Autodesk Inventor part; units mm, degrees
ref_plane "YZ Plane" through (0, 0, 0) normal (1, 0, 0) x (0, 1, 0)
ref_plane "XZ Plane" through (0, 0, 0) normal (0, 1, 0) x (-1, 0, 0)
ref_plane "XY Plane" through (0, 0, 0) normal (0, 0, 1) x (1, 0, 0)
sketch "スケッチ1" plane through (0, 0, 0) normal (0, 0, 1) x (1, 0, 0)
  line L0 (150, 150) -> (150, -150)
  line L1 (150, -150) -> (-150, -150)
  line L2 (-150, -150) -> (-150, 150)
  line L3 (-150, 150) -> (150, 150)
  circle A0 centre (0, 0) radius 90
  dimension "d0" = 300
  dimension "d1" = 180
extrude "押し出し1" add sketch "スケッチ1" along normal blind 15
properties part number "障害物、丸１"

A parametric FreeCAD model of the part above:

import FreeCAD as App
import Part
import Sketcher
from FreeCAD import Vector


def add_polygon(sketch, points):
    """Adds a closed chain of lines whose ends are joined by coincident constraints."""
    first, n = sketch.GeometryCount, len(points)
    for a, b in zip(points, points[1:] + points[:1]):
        sketch.addGeometry(Part.LineSegment(App.Vector(*a, 0), App.Vector(*b, 0)), False)
    for i in range(n):
        sketch.addConstraint(Sketcher.Constraint("Coincident", first + i, 2, first + (i + 1) % n, 1))

doc = App.newDocument("Part")
params = doc.addObject("Spreadsheet::Sheet", "Params")
for row, (alias, value) in enumerate([
    ("sketch1_diameter", "180 mm"),
    ("sketch1_width", "300 mm"),
    ("pad1_length", "15 mm"),
], start=1):
    params.set(f"A{row}", alias)
    params.set(f"B{row}", "=" + value)
    params.setAlias(f"B{row}", alias)

body = doc.addObject("PartDesign::Body", "Body")

sketch1 = body.newObject("Sketcher::SketchObject", "Sketch")
sketch1.AttachmentSupport = (doc.getObject("XY_Plane"), [""])
sketch1.MapMode = "FlatFace"
add_polygon(sketch1, [(150, -150), (150, 150), (-150, 150), (-150, -150)])
sketch1.addGeometry(Part.Circle(Vector(0, 0, 0), Vector(0, 0, 1), 90), False)
sketch1.addConstraint(Sketcher.Constraint("Vertical", 0))
sketch1.addConstraint(Sketcher.Constraint("Horizontal", 1))
sketch1.addConstraint(Sketcher.Constraint("Vertical", 2))
sketch1.addConstraint(Sketcher.Constraint("Horizontal", 3))
sketch1.addConstraint(Sketcher.Constraint("Coincident", 4, 3, -1, 1))
sketch1.addConstraint(Sketcher.Constraint("Symmetric", 0, 2, 2, 2, -1, 1))
sketch1.addConstraint(Sketcher.Constraint("Equal", 3, 0))
sketch1.addConstraint(Sketcher.Constraint("Diameter", 4, 180.0))
sketch1.addConstraint(Sketcher.Constraint("DistanceX", 1, 2, 1, 1, 300.0))
sketch1.setExpression("Constraints[11]", "Params.sketch1_diameter")
sketch1.setExpression("Constraints[12]", "Params.sketch1_width")
pad1 = body.newObject("PartDesign::Pad", "Pad")
pad1.Profile = sketch1
pad1.setExpression("Length", "Params.pad1_length")

doc.recompute()
